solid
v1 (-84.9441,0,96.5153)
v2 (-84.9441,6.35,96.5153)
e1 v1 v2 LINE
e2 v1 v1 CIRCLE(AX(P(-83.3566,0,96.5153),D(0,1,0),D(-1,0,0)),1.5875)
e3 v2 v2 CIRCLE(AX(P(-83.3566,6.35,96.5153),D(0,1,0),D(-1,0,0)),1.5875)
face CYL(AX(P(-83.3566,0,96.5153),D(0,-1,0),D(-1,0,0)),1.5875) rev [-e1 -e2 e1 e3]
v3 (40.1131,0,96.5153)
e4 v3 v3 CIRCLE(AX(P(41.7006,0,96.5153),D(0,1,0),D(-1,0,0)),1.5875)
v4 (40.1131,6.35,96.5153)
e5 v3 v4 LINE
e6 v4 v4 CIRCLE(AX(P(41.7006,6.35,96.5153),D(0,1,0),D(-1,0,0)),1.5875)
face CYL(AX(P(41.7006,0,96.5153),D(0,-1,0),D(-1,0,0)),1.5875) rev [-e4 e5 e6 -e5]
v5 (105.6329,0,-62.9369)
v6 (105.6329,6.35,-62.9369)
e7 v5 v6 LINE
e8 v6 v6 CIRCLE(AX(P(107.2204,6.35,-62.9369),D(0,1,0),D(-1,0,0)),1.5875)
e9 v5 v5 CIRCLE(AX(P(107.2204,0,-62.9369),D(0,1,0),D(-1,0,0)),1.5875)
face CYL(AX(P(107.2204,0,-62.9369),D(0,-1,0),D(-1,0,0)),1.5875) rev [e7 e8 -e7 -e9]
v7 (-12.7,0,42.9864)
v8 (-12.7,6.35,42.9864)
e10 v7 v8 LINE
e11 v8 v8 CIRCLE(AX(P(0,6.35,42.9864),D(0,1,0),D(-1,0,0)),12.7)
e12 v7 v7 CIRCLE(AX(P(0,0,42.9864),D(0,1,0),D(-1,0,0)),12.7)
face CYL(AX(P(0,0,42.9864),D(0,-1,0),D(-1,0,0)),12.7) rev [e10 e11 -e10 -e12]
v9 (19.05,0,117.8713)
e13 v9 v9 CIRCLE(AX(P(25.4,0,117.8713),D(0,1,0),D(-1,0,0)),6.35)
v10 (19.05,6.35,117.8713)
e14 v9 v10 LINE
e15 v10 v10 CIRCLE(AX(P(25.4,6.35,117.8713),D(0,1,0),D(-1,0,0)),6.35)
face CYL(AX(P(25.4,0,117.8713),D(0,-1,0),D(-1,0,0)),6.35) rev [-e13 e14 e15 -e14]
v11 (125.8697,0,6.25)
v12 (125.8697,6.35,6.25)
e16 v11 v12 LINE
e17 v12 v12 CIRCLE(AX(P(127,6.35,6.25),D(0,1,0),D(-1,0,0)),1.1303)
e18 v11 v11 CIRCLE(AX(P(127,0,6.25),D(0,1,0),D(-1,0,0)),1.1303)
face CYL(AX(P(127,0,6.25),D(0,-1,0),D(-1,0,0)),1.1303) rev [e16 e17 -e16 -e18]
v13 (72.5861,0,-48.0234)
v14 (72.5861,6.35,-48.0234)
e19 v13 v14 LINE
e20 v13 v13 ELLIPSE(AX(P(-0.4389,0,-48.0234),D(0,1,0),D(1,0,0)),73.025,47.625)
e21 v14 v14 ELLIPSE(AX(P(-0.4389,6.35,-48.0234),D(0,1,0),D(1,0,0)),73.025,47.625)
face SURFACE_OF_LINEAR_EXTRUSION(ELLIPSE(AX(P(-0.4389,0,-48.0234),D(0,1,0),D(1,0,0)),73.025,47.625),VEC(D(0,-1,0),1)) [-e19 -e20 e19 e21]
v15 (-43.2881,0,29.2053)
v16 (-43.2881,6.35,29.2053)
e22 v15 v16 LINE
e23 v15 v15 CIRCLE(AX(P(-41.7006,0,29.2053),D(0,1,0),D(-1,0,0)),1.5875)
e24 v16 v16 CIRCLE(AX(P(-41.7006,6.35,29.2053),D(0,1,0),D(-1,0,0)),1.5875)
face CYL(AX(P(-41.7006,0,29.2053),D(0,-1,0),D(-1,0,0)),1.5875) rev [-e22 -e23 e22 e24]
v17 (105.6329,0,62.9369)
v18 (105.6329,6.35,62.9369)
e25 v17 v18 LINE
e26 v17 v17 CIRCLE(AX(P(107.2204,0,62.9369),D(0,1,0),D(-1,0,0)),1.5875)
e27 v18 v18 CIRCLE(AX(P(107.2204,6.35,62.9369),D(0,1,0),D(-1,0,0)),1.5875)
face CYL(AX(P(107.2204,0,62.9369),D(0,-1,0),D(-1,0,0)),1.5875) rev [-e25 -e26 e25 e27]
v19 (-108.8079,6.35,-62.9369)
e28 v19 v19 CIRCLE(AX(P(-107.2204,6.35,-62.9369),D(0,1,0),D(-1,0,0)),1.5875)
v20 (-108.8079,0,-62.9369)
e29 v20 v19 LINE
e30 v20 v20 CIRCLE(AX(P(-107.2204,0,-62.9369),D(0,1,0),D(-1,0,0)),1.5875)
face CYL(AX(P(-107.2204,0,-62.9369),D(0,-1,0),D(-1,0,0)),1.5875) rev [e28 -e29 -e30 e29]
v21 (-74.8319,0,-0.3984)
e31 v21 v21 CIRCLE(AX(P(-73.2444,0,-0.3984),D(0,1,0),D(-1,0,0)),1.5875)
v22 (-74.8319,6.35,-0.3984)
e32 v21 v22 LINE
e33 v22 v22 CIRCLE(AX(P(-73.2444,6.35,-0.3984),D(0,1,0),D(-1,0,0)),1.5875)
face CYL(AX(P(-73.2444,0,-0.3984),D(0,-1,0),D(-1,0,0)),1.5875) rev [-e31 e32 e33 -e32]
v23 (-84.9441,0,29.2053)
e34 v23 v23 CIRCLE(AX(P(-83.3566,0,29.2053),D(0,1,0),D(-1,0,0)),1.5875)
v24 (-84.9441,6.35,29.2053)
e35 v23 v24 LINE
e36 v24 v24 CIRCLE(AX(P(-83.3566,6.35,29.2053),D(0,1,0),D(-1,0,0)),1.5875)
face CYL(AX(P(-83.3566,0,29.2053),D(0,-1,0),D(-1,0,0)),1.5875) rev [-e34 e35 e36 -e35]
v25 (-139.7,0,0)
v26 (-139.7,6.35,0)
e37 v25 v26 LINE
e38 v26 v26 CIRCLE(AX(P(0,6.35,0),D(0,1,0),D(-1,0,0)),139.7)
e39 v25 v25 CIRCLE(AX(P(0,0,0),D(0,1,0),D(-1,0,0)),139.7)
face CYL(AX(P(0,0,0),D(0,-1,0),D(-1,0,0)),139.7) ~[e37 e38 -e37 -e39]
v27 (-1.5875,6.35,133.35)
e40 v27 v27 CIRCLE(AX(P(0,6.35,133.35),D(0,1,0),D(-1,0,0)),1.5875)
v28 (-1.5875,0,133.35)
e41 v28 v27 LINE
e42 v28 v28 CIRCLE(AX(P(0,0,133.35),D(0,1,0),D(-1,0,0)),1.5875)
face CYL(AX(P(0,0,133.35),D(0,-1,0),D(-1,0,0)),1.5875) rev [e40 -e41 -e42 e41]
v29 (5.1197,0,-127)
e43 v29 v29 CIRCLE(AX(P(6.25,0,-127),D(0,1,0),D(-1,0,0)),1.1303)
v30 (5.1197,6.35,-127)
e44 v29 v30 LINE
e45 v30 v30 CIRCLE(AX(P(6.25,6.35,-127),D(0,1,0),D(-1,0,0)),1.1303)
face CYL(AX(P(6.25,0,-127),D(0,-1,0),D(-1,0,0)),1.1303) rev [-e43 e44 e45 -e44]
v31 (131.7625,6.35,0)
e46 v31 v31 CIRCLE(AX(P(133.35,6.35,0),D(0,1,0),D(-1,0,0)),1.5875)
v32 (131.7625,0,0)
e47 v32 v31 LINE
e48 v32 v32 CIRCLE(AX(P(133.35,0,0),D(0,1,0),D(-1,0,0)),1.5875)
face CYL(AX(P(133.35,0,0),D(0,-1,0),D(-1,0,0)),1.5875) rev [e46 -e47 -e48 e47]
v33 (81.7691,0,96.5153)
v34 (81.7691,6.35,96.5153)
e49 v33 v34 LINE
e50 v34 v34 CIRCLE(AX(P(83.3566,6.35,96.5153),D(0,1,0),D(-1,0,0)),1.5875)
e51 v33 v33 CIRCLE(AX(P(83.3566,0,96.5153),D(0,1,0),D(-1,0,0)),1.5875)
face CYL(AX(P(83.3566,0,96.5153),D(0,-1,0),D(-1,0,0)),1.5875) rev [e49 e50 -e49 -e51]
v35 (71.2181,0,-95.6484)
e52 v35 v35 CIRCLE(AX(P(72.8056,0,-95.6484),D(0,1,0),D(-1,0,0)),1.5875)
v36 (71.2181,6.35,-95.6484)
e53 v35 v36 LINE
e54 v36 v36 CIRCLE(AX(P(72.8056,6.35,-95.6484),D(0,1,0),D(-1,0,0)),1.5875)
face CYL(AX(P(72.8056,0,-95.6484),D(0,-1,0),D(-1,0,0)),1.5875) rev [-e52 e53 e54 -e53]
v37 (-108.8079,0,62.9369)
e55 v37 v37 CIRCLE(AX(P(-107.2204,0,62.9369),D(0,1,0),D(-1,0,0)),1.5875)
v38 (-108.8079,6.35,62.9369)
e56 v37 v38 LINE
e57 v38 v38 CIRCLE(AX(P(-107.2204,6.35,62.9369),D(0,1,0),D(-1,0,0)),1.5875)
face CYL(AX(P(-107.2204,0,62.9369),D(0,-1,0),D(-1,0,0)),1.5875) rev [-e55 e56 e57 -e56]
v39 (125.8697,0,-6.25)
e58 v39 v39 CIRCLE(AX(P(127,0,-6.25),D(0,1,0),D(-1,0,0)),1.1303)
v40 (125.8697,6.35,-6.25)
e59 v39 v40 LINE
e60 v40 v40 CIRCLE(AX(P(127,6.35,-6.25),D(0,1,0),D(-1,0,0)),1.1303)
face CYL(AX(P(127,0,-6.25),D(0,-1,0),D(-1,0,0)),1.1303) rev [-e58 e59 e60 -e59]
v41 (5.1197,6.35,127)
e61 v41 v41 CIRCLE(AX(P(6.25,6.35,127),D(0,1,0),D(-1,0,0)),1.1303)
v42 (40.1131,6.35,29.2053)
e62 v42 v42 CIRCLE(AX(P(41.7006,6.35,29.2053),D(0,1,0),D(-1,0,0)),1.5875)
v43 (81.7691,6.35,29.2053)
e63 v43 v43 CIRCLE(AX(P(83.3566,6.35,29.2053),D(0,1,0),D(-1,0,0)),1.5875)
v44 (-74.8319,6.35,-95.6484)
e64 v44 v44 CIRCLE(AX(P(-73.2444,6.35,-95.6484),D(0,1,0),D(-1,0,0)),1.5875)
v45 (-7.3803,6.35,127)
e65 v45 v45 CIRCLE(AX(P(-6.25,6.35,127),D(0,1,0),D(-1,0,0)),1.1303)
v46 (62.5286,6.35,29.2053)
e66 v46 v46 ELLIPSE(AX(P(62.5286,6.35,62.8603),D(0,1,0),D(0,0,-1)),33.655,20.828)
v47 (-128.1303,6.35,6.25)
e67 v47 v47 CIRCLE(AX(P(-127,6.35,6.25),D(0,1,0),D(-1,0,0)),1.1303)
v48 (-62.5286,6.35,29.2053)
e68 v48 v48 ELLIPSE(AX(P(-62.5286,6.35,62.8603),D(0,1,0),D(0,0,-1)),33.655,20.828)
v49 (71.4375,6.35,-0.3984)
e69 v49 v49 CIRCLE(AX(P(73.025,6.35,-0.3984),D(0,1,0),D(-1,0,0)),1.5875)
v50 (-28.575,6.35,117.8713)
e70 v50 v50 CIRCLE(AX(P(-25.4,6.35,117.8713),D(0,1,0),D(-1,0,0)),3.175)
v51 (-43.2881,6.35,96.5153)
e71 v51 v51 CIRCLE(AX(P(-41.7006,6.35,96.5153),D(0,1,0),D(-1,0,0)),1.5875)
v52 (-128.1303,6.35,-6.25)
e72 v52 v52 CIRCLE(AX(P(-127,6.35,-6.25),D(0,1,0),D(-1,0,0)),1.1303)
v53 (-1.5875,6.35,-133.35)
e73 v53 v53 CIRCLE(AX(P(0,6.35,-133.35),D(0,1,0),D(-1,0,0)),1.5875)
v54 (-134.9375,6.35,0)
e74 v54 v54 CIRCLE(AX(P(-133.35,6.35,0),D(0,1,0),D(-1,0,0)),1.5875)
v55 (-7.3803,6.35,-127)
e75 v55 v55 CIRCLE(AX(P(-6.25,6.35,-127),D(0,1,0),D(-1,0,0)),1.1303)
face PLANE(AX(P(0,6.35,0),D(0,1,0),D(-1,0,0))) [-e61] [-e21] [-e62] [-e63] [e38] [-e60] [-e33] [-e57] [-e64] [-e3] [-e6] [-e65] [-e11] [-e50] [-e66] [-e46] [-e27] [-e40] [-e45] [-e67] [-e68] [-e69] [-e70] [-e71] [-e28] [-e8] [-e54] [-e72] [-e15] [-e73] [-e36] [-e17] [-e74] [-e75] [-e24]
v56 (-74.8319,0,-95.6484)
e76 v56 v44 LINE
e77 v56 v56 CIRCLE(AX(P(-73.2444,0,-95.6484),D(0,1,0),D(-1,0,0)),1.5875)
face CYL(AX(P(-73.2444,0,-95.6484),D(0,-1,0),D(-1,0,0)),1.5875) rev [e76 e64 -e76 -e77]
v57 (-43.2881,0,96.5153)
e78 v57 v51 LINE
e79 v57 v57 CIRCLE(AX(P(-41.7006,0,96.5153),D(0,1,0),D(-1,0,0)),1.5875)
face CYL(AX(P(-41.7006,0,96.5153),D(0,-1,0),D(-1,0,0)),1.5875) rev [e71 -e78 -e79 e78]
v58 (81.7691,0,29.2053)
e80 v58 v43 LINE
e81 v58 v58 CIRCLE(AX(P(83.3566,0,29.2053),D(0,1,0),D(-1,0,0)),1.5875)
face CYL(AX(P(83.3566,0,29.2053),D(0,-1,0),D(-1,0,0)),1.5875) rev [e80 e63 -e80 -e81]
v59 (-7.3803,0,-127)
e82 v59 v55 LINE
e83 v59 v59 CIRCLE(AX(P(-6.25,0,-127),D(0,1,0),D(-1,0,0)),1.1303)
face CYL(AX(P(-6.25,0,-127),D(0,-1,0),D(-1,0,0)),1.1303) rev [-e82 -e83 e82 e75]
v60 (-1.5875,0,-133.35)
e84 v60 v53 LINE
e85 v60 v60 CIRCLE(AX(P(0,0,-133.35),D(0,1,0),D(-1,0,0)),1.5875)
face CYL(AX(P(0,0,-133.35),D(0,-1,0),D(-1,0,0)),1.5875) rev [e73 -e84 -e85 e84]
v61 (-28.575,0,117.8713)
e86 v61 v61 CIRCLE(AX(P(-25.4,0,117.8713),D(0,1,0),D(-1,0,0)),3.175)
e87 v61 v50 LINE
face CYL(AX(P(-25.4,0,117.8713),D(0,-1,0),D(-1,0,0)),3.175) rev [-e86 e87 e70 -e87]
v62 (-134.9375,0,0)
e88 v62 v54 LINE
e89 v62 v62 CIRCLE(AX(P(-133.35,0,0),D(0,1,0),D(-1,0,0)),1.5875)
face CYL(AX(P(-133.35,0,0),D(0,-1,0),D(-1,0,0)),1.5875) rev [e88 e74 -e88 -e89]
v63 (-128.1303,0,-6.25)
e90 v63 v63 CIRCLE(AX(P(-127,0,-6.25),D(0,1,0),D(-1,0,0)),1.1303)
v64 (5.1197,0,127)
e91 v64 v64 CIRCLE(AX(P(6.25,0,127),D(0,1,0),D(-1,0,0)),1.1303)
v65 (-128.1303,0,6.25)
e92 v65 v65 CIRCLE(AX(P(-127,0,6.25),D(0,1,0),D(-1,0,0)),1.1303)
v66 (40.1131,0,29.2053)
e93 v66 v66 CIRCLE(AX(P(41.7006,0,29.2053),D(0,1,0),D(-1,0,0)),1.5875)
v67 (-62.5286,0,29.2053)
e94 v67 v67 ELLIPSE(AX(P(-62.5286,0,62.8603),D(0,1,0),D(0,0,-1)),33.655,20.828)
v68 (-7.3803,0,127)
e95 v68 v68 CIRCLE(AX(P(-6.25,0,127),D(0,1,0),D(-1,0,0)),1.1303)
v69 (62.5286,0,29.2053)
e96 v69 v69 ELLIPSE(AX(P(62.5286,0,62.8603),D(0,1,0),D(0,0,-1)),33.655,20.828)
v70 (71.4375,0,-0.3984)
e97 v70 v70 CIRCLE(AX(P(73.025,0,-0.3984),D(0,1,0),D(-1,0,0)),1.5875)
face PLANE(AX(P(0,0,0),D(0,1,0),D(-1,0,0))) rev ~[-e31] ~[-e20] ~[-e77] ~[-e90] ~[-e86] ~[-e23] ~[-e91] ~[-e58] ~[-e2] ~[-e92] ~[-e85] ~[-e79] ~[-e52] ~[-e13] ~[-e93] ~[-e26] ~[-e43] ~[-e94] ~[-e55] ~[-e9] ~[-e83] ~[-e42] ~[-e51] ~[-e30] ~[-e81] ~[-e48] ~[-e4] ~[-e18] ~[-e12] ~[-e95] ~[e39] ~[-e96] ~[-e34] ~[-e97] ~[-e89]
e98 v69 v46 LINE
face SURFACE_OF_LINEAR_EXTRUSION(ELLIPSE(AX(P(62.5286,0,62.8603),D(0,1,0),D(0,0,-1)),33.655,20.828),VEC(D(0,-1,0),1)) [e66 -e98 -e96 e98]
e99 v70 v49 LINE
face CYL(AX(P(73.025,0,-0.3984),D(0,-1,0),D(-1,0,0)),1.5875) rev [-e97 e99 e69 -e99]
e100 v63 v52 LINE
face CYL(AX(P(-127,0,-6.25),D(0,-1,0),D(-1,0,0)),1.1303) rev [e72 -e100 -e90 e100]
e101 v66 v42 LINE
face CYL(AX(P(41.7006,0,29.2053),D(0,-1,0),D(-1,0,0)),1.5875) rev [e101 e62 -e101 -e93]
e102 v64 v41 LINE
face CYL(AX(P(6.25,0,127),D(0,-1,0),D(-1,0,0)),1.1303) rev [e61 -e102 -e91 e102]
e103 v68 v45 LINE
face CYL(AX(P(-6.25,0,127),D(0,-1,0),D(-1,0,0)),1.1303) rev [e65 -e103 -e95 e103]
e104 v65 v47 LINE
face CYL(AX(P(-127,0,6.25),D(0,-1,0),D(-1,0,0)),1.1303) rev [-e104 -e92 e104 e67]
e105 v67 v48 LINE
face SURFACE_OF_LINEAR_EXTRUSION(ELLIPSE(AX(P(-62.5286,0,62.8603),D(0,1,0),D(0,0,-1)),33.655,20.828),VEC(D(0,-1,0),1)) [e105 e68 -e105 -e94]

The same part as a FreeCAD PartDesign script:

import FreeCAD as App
import Part
import Sketcher
Q = App.Units.Quantity

doc = App.newDocument("Part")
body = doc.addObject("PartDesign::Body", "Body")

# Sketch on XZ plane
sketch1 = body.newObject("Sketcher::SketchObject", "Sketch")
sketch1.AttachmentSupport = (doc.getObject("XZ_Plane"), [""])
sketch1.MapMode = "FlatFace"
sketch1.addGeometry(Part.Circle(App.Vector(0, 0, 0), App.Vector(0, 0, 1), 139.7), False)
sketch1.addGeometry(Part.Circle(App.Vector(72.8056, -95.6484, 0), App.Vector(0, 0, 1), 1.5875), False)
sketch1.addGeometry(Part.Circle(App.Vector(6.25, -127, 0), App.Vector(0, 0, 1), 1.1303), False)
sketch1.addGeometry(Part.Circle(App.Vector(107.2204, -62.9369, 0), App.Vector(0, 0, 1), 1.5875), False)
sketch1.addGeometry(Part.Circle(App.Vector(127, -6.25, 0), App.Vector(0, 0, 1), 1.1303), False)
sketch1.addGeometry(Part.Circle(App.Vector(73.025, -0.3984, 0), App.Vector(0, 0, 1), 1.5875), False)
sketch1.addGeometry(Part.Circle(App.Vector(0, -133.35, 0), App.Vector(0, 0, 1), 1.5875), False)
sketch1.addGeometry(Part.Circle(App.Vector(-6.25, -127, 0), App.Vector(0, 0, 1), 1.1303), False)
sketch1.addGeometry(Part.Circle(App.Vector(-73.2444, -95.6484, 0), App.Vector(0, 0, 1), 1.5875), False)
sketch1.addGeometry(Part.Ellipse(App.Vector(72.5861, -48.0234, 0), App.Vector(-0.4389, -0.3984, 0), App.Vector(-0.4389, -48.0234, 0)), False)
sketch1.addGeometry(Part.Circle(App.Vector(-107.2204, -62.9369, 0), App.Vector(0, 0, 1), 1.5875), False)
sketch1.addGeometry(Part.Circle(App.Vector(-73.2444, -0.3984, 0), App.Vector(0, 0, 1), 1.5875), False)
sketch1.addGeometry(Part.Circle(App.Vector(-127, -6.25, 0), App.Vector(0, 0, 1), 1.1303), False)
sketch1.addGeometry(Part.Circle(App.Vector(133.35, 0, 0), App.Vector(0, 0, 1), 1.5875), False)
sketch1.addGeometry(Part.Circle(App.Vector(127, 6.25, 0), App.Vector(0, 0, 1), 1.1303), False)
sketch1.addGeometry(Part.Circle(App.Vector(83.3566, 29.2053, 0), App.Vector(0, 0, 1), 1.5875), False)
sketch1.addGeometry(Part.Circle(App.Vector(107.2204, 62.9369, 0), App.Vector(0, 0, 1), 1.5875), False)
sketch1.addGeometry(Part.Circle(App.Vector(41.7006, 29.2053, 0), App.Vector(0, 0, 1), 1.5875), False)
sketch1.addGeometry(Part.Ellipse(App.Vector(62.5286, 29.2053, 0), App.Vector(83.3566, 62.8603, 0), App.Vector(62.5286, 62.8603, 0)), False)
sketch1.addGeometry(Part.Circle(App.Vector(83.3566, 96.5153, 0), App.Vector(0, 0, 1), 1.5875), False)
sketch1.addGeometry(Part.Circle(App.Vector(41.7006, 96.5153, 0), App.Vector(0, 0, 1), 1.5875), False)
sketch1.addGeometry(Part.Circle(App.Vector(25.4, 117.8713, 0), App.Vector(0, 0, 1), 6.35), False)
sketch1.addGeometry(Part.Circle(App.Vector(6.25, 127, 0), App.Vector(0, 0, 1), 1.1303), False)
sketch1.addGeometry(Part.Circle(App.Vector(-41.7006, 29.2053, 0), App.Vector(0, 0, 1), 1.5875), False)
sketch1.addGeometry(Part.Circle(App.Vector(0, 42.9864, 0), App.Vector(0, 0, 1), 12.7), False)
sketch1.addGeometry(Part.Ellipse(App.Vector(-62.5286, 29.2053, 0), App.Vector(-41.7006, 62.8603, 0), App.Vector(-62.5286, 62.8603, 0)), False)
sketch1.addGeometry(Part.Circle(App.Vector(-83.3566, 29.2053, 0), App.Vector(0, 0, 1), 1.5875), False)
sketch1.addGeometry(Part.Circle(App.Vector(-127, 6.25, 0), App.Vector(0, 0, 1), 1.1303), False)
sketch1.addGeometry(Part.Circle(App.Vector(-133.35, 0, 0), App.Vector(0, 0, 1), 1.5875), False)
sketch1.addGeometry(Part.Circle(App.Vector(-107.2204, 62.9369, 0), App.Vector(0, 0, 1), 1.5875), False)
sketch1.addGeometry(Part.Circle(App.Vector(-41.7006, 96.5153, 0), App.Vector(0, 0, 1), 1.5875), False)
sketch1.addGeometry(Part.Circle(App.Vector(-25.4, 117.8713, 0), App.Vector(0, 0, 1), 3.175), False)
sketch1.addGeometry(Part.Circle(App.Vector(-6.25, 127, 0), App.Vector(0, 0, 1), 1.1303), False)
sketch1.addGeometry(Part.Circle(App.Vector(0, 133.35, 0), App.Vector(0, 0, 1), 1.5875), False)
sketch1.addGeometry(Part.Circle(App.Vector(-83.3566, 96.5153, 0), App.Vector(0, 0, 1), 1.5875), False)
sketch1.addConstraint(Sketcher.Constraint("Block", 9))
sketch1.addConstraint(Sketcher.Constraint("Block", 18))
sketch1.addConstraint(Sketcher.Constraint("Block", 25))
sketch1.addConstraint(Sketcher.Constraint("Coincident", 0, 3, -1, 1))
sketch1.addConstraint(Sketcher.Constraint("Equal", 1, 3))
sketch1.addConstraint(Sketcher.Constraint("Equal", 2, 4))
sketch1.addConstraint(Sketcher.Constraint("Equal", 3, 5))
sketch1.addConstraint(Sketcher.Constraint("Equal", 5, 6))
sketch1.addConstraint(Sketcher.Constraint("Equal", 4, 7))
sketch1.addConstraint(Sketcher.Constraint("Equal", 6, 8))
sketch1.addConstraint(Sketcher.Constraint("Equal", 8, 10))
sketch1.addConstraint(Sketcher.Constraint("Equal", 10, 11))
sketch1.addConstraint(Sketcher.Constraint("Equal", 7, 12))
sketch1.addConstraint(Sketcher.Constraint("Equal", 11, 13))
sketch1.addConstraint(Sketcher.Constraint("Equal", 12, 14))
sketch1.addConstraint(Sketcher.Constraint("Equal", 13, 15))
sketch1.addConstraint(Sketcher.Constraint("Equal", 15, 16))
sketch1.addConstraint(Sketcher.Constraint("Equal", 16, 17))
sketch1.addConstraint(Sketcher.Constraint("Equal", 17, 19))
sketch1.addConstraint(Sketcher.Constraint("Equal", 19, 20))
sketch1.addConstraint(Sketcher.Constraint("Equal", 14, 22))
sketch1.addConstraint(Sketcher.Constraint("Equal", 20, 23))
sketch1.addConstraint(Sketcher.Constraint("Equal", 23, 26))
sketch1.addConstraint(Sketcher.Constraint("Equal", 22, 27))
sketch1.addConstraint(Sketcher.Constraint("Equal", 26, 28))
sketch1.addConstraint(Sketcher.Constraint("Equal", 28, 29))
sketch1.addConstraint(Sketcher.Constraint("Equal", 29, 30))
sketch1.addConstraint(Sketcher.Constraint("Equal", 27, 32))
sketch1.addConstraint(Sketcher.Constraint("Equal", 30, 33))
sketch1.addConstraint(Sketcher.Constraint("Equal", 33, 34))
sketch1.addConstraint(Sketcher.Constraint("Symmetric", 12, 3, 14, 3, -1, 1))
sketch1.addConstraint(Sketcher.Constraint("Symmetric", 10, 3, 16, 3, -1, 1))
sketch1.addConstraint(Sketcher.Constraint("Symmetric", 7, 3, 22, 3, -1, 1))
sketch1.addConstraint(Sketcher.Constraint("Symmetric", 4, 3, 27, 3, -1, 1))
sketch1.addConstraint(Sketcher.Constraint("Symmetric", 13, 3, 28, 3, -1, 1))
sketch1.addConstraint(Sketcher.Constraint("Symmetric", 3, 3, 29, 3, -1, 1))
sketch1.addConstraint(Sketcher.Constraint("Symmetric", 2, 3, 32, 3, -1, 1))
sketch1.addConstraint(Sketcher.Constraint("Symmetric", 6, 3, 33, 3, -1, 1))
sketch1.addConstraint(Sketcher.Constraint("Symmetric", 2, 3, 7, 3, -2))
sketch1.addConstraint(Sketcher.Constraint("Symmetric", 3, 3, 10, 3, -2))
sketch1.addConstraint(Sketcher.Constraint("Symmetric", 4, 3, 12, 3, -2))
sketch1.addConstraint(Sketcher.Constraint("Symmetric", 17, 3, 23, 3, -2))
sketch1.addConstraint(Sketcher.Constraint("Symmetric", 15, 3, 26, 3, -2))
sketch1.addConstraint(Sketcher.Constraint("Symmetric", 20, 3, 30, 3, -2))
sketch1.addConstraint(Sketcher.Constraint("Symmetric", 21, 3, 31, 3, -2))
sketch1.addConstraint(Sketcher.Constraint("Symmetric", 19, 3, 34, 3, -2))
sketch1.addConstraint(Sketcher.Constraint("PointOnObject", 6, 3, -2))
sketch1.addConstraint(Sketcher.Constraint("PointOnObject", 13, 3, -1))
sketch1.addConstraint(Sketcher.Constraint("PointOnObject", 24, 3, -2))
sketch1.addConstraint(Sketcher.Constraint("Horizontal", 1, 3, 8, 3))
sketch1.addConstraint(Sketcher.Constraint("Horizontal", 5, 3, 11, 3))
sketch1.addConstraint(Sketcher.Constraint("Horizontal", 15, 3, 17, 3))
sketch1.addConstraint(Sketcher.Constraint("Horizontal", 19, 3, 20, 3))
sketch1.addConstraint(Sketcher.Constraint("Vertical", 8, 3, 11, 3))
sketch1.addConstraint(Sketcher.Constraint("Vertical", 15, 3, 19, 3))
sketch1.addConstraint(Sketcher.Constraint("Vertical", 17, 3, 20, 3))
sketch1.addConstraint(Sketcher.Constraint("Diameter", 0, Q("11 in")))
sketch1.addConstraint(Sketcher.Constraint("Diameter", 24, Q("1 in")))
sketch1.addConstraint(Sketcher.Constraint("Diameter", 21, Q("0.5 in")))
sketch1.addConstraint(Sketcher.Constraint("Diameter", 31, Q("0.25 in")))
sketch1.addConstraint(Sketcher.Constraint("Diameter", 1, Q("0.125 in")))
sketch1.addConstraint(Sketcher.Constraint("Diameter", 2, Q("0.089 in")))
sketch1.addConstraint(Sketcher.Constraint("DistanceX", -1, 1, 21, 3, Q("1 in")))
sketch1.addConstraint(Sketcher.Constraint("DistanceY", 6, 3, 2, 3, Q("0.25 in")))
sketch1.addConstraint(Sketcher.Constraint("DistanceX", 8, 3, 1, 3, Q("5.75 in")))
sketch1.addConstraint(Sketcher.Constraint("DistanceX", 4, 3, 13, 3, Q("0.25 in")))
sketch1.addConstraint(Sketcher.Constraint("DistanceY", 2, 3, -1, 1, Q("5 in")))
sketch1.addConstraint(Sketcher.Constraint("DistanceX", -1, 1, 4, 3, Q("5 in")))
sketch1.addConstraint(Sketcher.Constraint("DistanceX", -1, 1, 5, 3, Q("2.875 in")))
sketch1.addConstraint(Sketcher.Constraint("DistanceY", 1, 3, 5, 3, Q("3.75 in")))
sketch1.addConstraint(Sketcher.Constraint("DistanceX", 17, 3, 15, 3, Q("1.64 in")))
sketch1.addConstraint(Sketcher.Constraint("DistanceY", 15, 3, 19, 3, Q("2.65 in")))
sketch1.addConstraint(Sketcher.Constraint("DistanceY", -1, 1, 21, 3, Q("4.6406 in")))
sketch1.addConstraint(Sketcher.Constraint("DistanceX", 2, 3, 1, 3, Q("2.6203 in")))
sketch1.addConstraint(Sketcher.Constraint("DistanceY", 3, 3, 14, 3, Q("2.7239 in")))
sketch1.addConstraint(Sketcher.Constraint("DistanceY", 5, 3, 15, 3, Q("1.1655 in")))
sketch1.addConstraint(Sketcher.Constraint("DistanceX", 22, 3, 20, 3, Q("1.3957 in")))
sketch1.addConstraint(Sketcher.Constraint("DistanceX", 23, 3, 17, 3, Q("3.2835 in")))
sketch1.addConstraint(Sketcher.Constraint("DistanceY", 1, 3, -1, 1, 95.6484))
sketch1.addConstraint(Sketcher.Constraint("DistanceX", -1, 1, 3, 3, 107.2204))
sketch1.addConstraint(Sketcher.Constraint("DistanceY", 3, 3, -1, 1, 62.937))
sketch1.addConstraint(Sketcher.Constraint("DistanceY", -1, 1, 24, 3, 42.9864))
pad1 = body.newObject("PartDesign::Pad", "Pad")
pad1.Profile = sketch1
pad1.Length = Q("0.25 in")
pad1.Reversed = True

doc.recompute()
